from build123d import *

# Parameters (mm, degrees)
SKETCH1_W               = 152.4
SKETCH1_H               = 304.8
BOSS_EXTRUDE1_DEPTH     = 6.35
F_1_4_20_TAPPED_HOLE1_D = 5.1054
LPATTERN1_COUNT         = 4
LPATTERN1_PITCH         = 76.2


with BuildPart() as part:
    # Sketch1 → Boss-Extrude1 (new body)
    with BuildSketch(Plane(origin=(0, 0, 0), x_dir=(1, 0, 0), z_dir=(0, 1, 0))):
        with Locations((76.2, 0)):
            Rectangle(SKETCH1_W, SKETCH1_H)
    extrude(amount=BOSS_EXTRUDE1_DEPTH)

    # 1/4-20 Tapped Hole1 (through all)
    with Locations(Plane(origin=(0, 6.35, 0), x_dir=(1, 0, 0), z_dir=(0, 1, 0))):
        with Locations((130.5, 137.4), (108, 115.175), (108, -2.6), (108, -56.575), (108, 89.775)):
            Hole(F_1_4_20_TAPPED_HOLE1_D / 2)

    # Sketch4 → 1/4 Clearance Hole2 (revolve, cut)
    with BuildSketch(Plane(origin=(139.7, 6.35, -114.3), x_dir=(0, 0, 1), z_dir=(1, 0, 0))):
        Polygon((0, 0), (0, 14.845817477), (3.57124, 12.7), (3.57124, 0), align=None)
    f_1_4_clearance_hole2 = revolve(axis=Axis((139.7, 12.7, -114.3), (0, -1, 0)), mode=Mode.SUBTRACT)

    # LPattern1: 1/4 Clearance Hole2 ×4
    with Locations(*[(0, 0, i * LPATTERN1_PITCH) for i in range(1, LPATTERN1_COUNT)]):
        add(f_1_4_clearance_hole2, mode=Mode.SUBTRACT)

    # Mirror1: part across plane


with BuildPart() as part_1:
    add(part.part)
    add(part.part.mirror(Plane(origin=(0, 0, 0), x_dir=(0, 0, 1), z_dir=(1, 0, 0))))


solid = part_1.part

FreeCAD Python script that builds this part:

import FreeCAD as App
import Part
import Sketcher
Q = App.Units.Quantity

doc = App.newDocument("Part")
body = doc.addObject("PartDesign::Body", "Body")

# Sketch on XZ plane
sketch1 = doc.addObject("Sketcher::SketchObject", "Sketch")
body.addObject(sketch1)
sketch1.AttachmentSupport = (doc.XZ_Plane, [""])
sketch1.MapMode = "FlatFace"
sketch1.addGeometry([
    Part.LineSegment(App.Vector(0, -152, 0), App.Vector(0, 152, 0)),
    Part.LineSegment(App.Vector(0, 152, 0), App.Vector(152, 152, 0)),
    Part.LineSegment(App.Vector(152, 152, 0), App.Vector(152, -152, 0)),
    Part.LineSegment(App.Vector(152, -152, 0), App.Vector(0, -152, 0)),
], False)
sketch1.addConstraint([
    Sketcher.Constraint("Coincident", 0, 2, 1, 1),
    Sketcher.Constraint("Coincident", 1, 2, 2, 1),
    Sketcher.Constraint("Coincident", 2, 2, 3, 1),
    Sketcher.Constraint("Coincident", 3, 2, 0, 1),
    Sketcher.Constraint("Vertical", 0),
    Sketcher.Constraint("Horizontal", 1),
    Sketcher.Constraint("Vertical", 2),
    Sketcher.Constraint("Horizontal", 3),
    Sketcher.Constraint("Symmetric", 0, 2, 3, 2, -1, 1),
    Sketcher.Constraint("DistanceX", 1, 1, 1, 2, Q("6 in")),
    Sketcher.Constraint("DistanceY", 0, 1, 0, 2, Q("12 in")),
])
pad1 = doc.addObject("PartDesign::Pad", "Pad")
body.addObject(pad1)
pad1.Profile = sketch1
pad1.Length = Q("0.25 in")
pad1.Reversed = True

# Sketch on XZ plane
sketch2 = doc.addObject("Sketcher::SketchObject", "Sketch001")
body.addObject(sketch2)
sketch2.AttachmentSupport = (doc.XZ_Plane, [""])
sketch2.MapMode = "FlatFace"
sketch2.AttachmentOffset = App.Placement(App.Vector(0, 0, -0.25 * 25.4), App.Rotation())
sketch2.addGeometry([
    Part.Circle(App.Vector(130.5, -137.4, 0), App.Vector(0, 0, 1), 2.6),  # 0
    Part.Circle(App.Vector(108, -115.2, 0), App.Vector(0, 0, 1), 2.6),  # 1
    Part.Circle(App.Vector(108, 2.6, 0), App.Vector(0, 0, 1), 2.6),  # 2
    Part.Circle(App.Vector(108, 56.6, 0), App.Vector(0, 0, 1), 2.6),  # 3
    Part.Circle(App.Vector(108, -89.8, 0), App.Vector(0, 0, 1), 2.6),  # 4
], False)
sketch2.addConstraint([
    Sketcher.Constraint("Equal", 0, 1),
    Sketcher.Constraint("Equal", 1, 2),
    Sketcher.Constraint("Equal", 2, 3),
    Sketcher.Constraint("Equal", 3, 4),
    Sketcher.Constraint("Vertical", 1, 3, 2, 3),
    Sketcher.Constraint("Vertical", 2, 3, 3, 3),
    Sketcher.Constraint("Vertical", 3, 3, 4, 3),
    Sketcher.Constraint("Diameter", 0, Q("0.201 in")),
    Sketcher.Constraint("DistanceY", 1, 3, 4, 3, Q("1 in")),
    Sketcher.Constraint("DistanceY", 0, 3, 1, 3, Q("0.875 in")),
    Sketcher.Constraint("DistanceY", 2, 3, 3, 3, Q("2.125 in")),
    Sketcher.Constraint("DistanceX", -1, 1, 0, 3, 130.5),
    Sketcher.Constraint("DistanceY", 0, 3, -1, 1, 137.4),
    Sketcher.Constraint("DistanceX", -1, 1, 1, 3, 108.0),
    Sketcher.Constraint("DistanceY", -1, 1, 2, 3, 2.6),
])
doc.recompute()
hole = doc.addObject("PartDesign::Hole", "Hole")
body.addObject(hole)
hole.Profile = sketch2
hole.ThreadType = "None"
hole.Diameter = Q("0.201 in")
hole.DepthType = "ThroughAll"
hole.Reversed = True

# Sketch on YZ plane
sketch3 = doc.addObject("Sketcher::SketchObject", "Sketch002")
body.addObject(sketch3)
sketch3.AttachmentSupport = (doc.YZ_Plane, [""])
sketch3.MapMode = "FlatFace"
sketch3.AttachmentOffset = App.Placement(App.Vector(0, 0, 5.5 * 25.4), App.Rotation())
sketch3.addGeometry([
    Part.LineSegment(App.Vector(-8.5, -114.3, 0), App.Vector(6.3, -114.3, 0)),
    Part.LineSegment(App.Vector(6.3, -114.3, 0), App.Vector(6.3, -110.7, 0)),
    Part.LineSegment(App.Vector(6.3, -110.7, 0), App.Vector(-6.3, -110.7, 0)),
    Part.LineSegment(App.Vector(-6.3, -110.7, 0), App.Vector(-8.5, -114.3, 0)),
], False)
sketch3.addGeometry(Part.LineSegment(App.Vector(6.3, -114.3, 0), App.Vector(-8.5, -114.3, 0)), True)  # axis
sketch3.addConstraint([
    Sketcher.Constraint("Coincident", 0, 2, 1, 1),
    Sketcher.Constraint("Coincident", 1, 2, 2, 1),
    Sketcher.Constraint("Coincident", 2, 2, 3, 1),
    Sketcher.Constraint("Coincident", 3, 2, 0, 1),
    Sketcher.Constraint("Horizontal", 0),
    Sketcher.Constraint("Vertical", 1),
    Sketcher.Constraint("Horizontal", 2),
    Sketcher.Constraint("Horizontal", 4),
    Sketcher.Constraint("Coincident", 4, 1, 0, 2),
    Sketcher.Constraint("Equal", 0, 4),
    Sketcher.Constraint("DistanceX", 2, 2, 2, 1, Q("0.5 in")),
    Sketcher.Constraint("Angle", 3, Q("-121 deg")),
    Sketcher.Constraint("DistanceY", 0, 2, -1, 1, Q("4.5 in")),
    Sketcher.Constraint("DistanceX", -1, 1, 0, 2, Q("0.25 in")),
    Sketcher.Constraint("DistanceY", 1, 1, 1, 2, Q("0.1406 in")),
])
groove = doc.addObject("PartDesign::Groove", "Groove")
body.addObject(groove)
groove.Profile = sketch3
groove.ReferenceAxis = (sketch3, ["Axis0"])
groove.Angle = 360
doc.recompute()

linearpattern = doc.addObject("PartDesign::LinearPattern", "LinearPattern")
body.addObject(linearpattern)
linearpattern.Originals = [groove]
linearpattern.Direction = (doc.Z_Axis, [""])
linearpattern.Mode = "offset"
linearpattern.Offset = Q("3 in")
linearpattern.Occurrences = 4
body.Tip = linearpattern
body2 = doc.addObject("PartDesign::Body", "Body001")
doc.recompute()

body2.BaseFeature = body
doc.recompute()

mirroring = doc.addObject("Part::Mirroring", "Mirroring")
mirroring.Source = body
mirroring.Base = App.Vector(0, 0, 0)
mirroring.Normal = App.Vector(1, 0, 0)
body3 = doc.addObject("PartDesign::Body", "Body002")
body3.BaseFeature = mirroring
boolean = doc.addObject("PartDesign::Boolean", "Boolean")
body2.addObject(boolean)
boolean.Type = "Fuse"
boolean.addObjects([body3])
doc.recompute()
mirroring.Visibility = False

doc.recompute()
